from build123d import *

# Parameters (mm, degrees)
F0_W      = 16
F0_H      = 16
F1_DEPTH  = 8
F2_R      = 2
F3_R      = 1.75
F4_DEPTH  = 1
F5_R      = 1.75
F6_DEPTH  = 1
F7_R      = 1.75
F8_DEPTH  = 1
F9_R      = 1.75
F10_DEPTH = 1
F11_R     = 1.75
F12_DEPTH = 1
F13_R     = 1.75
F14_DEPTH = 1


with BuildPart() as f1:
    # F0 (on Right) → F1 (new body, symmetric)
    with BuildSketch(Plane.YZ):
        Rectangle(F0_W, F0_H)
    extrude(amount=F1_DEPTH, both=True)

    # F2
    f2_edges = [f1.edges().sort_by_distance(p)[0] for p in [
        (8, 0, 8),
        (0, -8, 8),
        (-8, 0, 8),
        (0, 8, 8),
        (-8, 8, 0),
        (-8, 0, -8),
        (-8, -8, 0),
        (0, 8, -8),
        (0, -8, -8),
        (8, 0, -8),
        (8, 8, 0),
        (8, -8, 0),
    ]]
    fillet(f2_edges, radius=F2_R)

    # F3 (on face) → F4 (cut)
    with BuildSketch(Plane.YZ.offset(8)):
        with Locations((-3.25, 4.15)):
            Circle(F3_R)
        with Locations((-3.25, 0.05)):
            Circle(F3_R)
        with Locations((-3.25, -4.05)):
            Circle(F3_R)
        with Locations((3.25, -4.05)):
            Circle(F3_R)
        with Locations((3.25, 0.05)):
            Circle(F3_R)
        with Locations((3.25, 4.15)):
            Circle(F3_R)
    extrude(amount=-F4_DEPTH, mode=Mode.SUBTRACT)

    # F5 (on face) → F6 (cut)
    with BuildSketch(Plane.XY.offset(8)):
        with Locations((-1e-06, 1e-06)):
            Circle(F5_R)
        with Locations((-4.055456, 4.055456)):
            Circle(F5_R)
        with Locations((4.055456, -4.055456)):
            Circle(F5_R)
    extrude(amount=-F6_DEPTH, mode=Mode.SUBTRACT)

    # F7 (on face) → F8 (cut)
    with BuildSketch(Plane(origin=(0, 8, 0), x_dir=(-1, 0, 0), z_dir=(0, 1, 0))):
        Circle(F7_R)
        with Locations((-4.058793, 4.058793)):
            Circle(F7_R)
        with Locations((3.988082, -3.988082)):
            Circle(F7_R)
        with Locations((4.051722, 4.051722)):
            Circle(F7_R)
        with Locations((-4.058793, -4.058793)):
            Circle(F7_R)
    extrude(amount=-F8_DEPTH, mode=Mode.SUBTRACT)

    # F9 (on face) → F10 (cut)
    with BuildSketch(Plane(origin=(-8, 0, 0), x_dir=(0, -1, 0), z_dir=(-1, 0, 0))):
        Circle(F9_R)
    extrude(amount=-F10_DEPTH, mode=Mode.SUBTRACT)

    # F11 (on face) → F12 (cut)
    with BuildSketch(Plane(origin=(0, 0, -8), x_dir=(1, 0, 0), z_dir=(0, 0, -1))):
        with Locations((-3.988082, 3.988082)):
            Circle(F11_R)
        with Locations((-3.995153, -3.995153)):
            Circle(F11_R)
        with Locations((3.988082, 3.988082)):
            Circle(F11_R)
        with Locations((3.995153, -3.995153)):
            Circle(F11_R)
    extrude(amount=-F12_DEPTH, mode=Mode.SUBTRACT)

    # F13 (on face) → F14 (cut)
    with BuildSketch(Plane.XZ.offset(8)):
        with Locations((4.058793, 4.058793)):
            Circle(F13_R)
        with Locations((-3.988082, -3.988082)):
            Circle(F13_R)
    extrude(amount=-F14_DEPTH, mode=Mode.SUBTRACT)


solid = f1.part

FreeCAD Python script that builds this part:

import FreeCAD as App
import Part
import Sketcher


def add_polygon(sketch, points):
    """Adds a closed chain of lines whose ends are joined by coincident constraints."""
    first, n = sketch.GeometryCount, len(points)
    for a, b in zip(points, points[1:] + points[:1]):
        sketch.addGeometry(Part.LineSegment(App.Vector(*a, 0), App.Vector(*b, 0)), False)
    for i in range(n):
        sketch.addConstraint(Sketcher.Constraint("Coincident", first + i, 2, first + (i + 1) % n, 1))

doc = App.newDocument("Part")
body = doc.addObject("PartDesign::Body", "Body")

sketch1 = body.newObject("Sketcher::SketchObject", "Sketch")
sketch1.AttachmentSupport = (doc.getObject("YZ_Plane"), [""])
sketch1.MapMode = "FlatFace"
add_polygon(sketch1, [(-8, 8), (-8, -8), (8, -8), (8, 8)])
sketch1.addConstraint(Sketcher.Constraint("Vertical", 0))
sketch1.addConstraint(Sketcher.Constraint("Horizontal", 1))
sketch1.addConstraint(Sketcher.Constraint("Vertical", 2))
sketch1.addConstraint(Sketcher.Constraint("Horizontal", 3))
sketch1.addConstraint(Sketcher.Constraint("Symmetric", 0, 2, 2, 2, -1, 1))
sketch1.addConstraint(Sketcher.Constraint("Equal", 3, 0))
sketch1.addConstraint(Sketcher.Constraint("DistanceX", 1, 1, 1, 2, 16.0))
pad1 = body.newObject("PartDesign::Pad", "Pad")
pad1.Profile = sketch1
pad1.Length = 16
pad1.Midplane = True
doc.recompute()

fillet = body.newObject("PartDesign::Fillet", "Fillet")
fillet.Base = (pad1, ["Edge1"])
fillet.UseAllEdges = True
fillet.Radius = 2

sketch2 = body.newObject("Sketcher::SketchObject", "Sketch001")
sketch2.AttachmentSupport = (doc.getObject("YZ_Plane"), [""])
sketch2.MapMode = "FlatFace"
sketch2.AttachmentOffset = App.Placement(App.Vector(0, 0, 8), App.Rotation())
sketch2.addGeometry(Part.Circle(App.Vector(-3.2, 4.2, 0), App.Vector(0, 0, 1), 1.8), False)
sketch2.addGeometry(Part.Circle(App.Vector(-3.2, 0.1, 0), App.Vector(0, 0, 1), 1.8), False)
sketch2.addGeometry(Part.Circle(App.Vector(-3.2, -4, 0), App.Vector(0, 0, 1), 1.8), False)
sketch2.addGeometry(Part.Circle(App.Vector(3.2, -4, 0), App.Vector(0, 0, 1), 1.8), False)
sketch2.addGeometry(Part.Circle(App.Vector(3.2, 0.1, 0), App.Vector(0, 0, 1), 1.8), False)
sketch2.addGeometry(Part.Circle(App.Vector(3.2, 4.2, 0), App.Vector(0, 0, 1), 1.8), False)
sketch2.addConstraint(Sketcher.Constraint("Equal", 0, 1))
sketch2.addConstraint(Sketcher.Constraint("Equal", 1, 2))
sketch2.addConstraint(Sketcher.Constraint("Equal", 2, 3))
sketch2.addConstraint(Sketcher.Constraint("Equal", 3, 4))
sketch2.addConstraint(Sketcher.Constraint("Equal", 4, 5))
sketch2.addConstraint(Sketcher.Constraint("Symmetric", 2, 3, 3, 3, -2))
sketch2.addConstraint(Sketcher.Constraint("Symmetric", 1, 3, 4, 3, -2))
sketch2.addConstraint(Sketcher.Constraint("Symmetric", 0, 3, 5, 3, -2))
sketch2.addConstraint(Sketcher.Constraint("Vertical", 0, 3, 1, 3))
sketch2.addConstraint(Sketcher.Constraint("Vertical", 1, 3, 2, 3))
sketch2.addConstraint(Sketcher.Constraint("Diameter", 0, 3.5))
sketch2.addConstraint(Sketcher.Constraint("DistanceY", 1, 3, 0, 3, 4.1))
sketch2.addConstraint(Sketcher.Constraint("DistanceY", 2, 3, 1, 3, 4.1))
sketch2.addConstraint(Sketcher.Constraint("DistanceX", 2, 3, 3, 3, 6.5))
sketch2.addConstraint(Sketcher.Constraint("DistanceY", -1, 1, 0, 3, 4.15))
pocket1 = body.newObject("PartDesign::Pocket", "Pocket")
pocket1.Profile = sketch2
pocket1.Length = 1

sketch3 = body.newObject("Sketcher::SketchObject", "Sketch002")
sketch3.AttachmentSupport = (doc.getObject("XY_Plane"), [""])
sketch3.MapMode = "FlatFace"
sketch3.AttachmentOffset = App.Placement(App.Vector(0, 0, 8), App.Rotation())
sketch3.addGeometry(Part.Circle(App.Vector(0, 0, 0), App.Vector(0, 0, 1), 1.8), False)
sketch3.addGeometry(Part.Circle(App.Vector(-4.1, 4.1, 0), App.Vector(0, 0, 1), 1.8), False)
sketch3.addGeometry(Part.Circle(App.Vector(4.1, -4.1, 0), App.Vector(0, 0, 1), 1.8), False)
sketch3.addConstraint(Sketcher.Constraint("Coincident", 0, 3, -1, 1))
sketch3.addConstraint(Sketcher.Constraint("Equal", 0, 1))
sketch3.addConstraint(Sketcher.Constraint("Equal", 1, 2))
sketch3.addConstraint(Sketcher.Constraint("Symmetric", 1, 3, 2, 3, -1, 1))
sketch3.addConstraint(Sketcher.Constraint("Diameter", 0, 3.5))
sketch3.addConstraint(Sketcher.Constraint("DistanceX", 1, 3, -1, 1, 4.055456))
sketch3.addConstraint(Sketcher.Constraint("DistanceY", -1, 1, 1, 3, 4.055456))
pocket2 = body.newObject("PartDesign::Pocket", "Pocket001")
pocket2.Profile = sketch3
pocket2.Length = 1

sketch4 = body.newObject("Sketcher::SketchObject", "Sketch003")
sketch4.AttachmentSupport = (doc.getObject("XZ_Plane"), [""])
sketch4.MapMode = "FlatFace"
sketch4.AttachmentOffset = App.Placement(App.Vector(0, 0, -8), App.Rotation())
sketch4.addGeometry(Part.Circle(App.Vector(0, 0, 0), App.Vector(0, 0, 1), 1.8), False)
sketch4.addGeometry(Part.Circle(App.Vector(4.1, 4.1, 0), App.Vector(0, 0, 1), 1.8), False)
sketch4.addGeometry(Part.Circle(App.Vector(-4, -4, 0), App.Vector(0, 0, 1), 1.8), False)
sketch4.addGeometry(Part.Circle(App.Vector(-4.1, 4.1, 0), App.Vector(0, 0, 1), 1.8), False)
sketch4.addGeometry(Part.Circle(App.Vector(4.1, -4.1, 0), App.Vector(0, 0, 1), 1.8), False)
sketch4.addConstraint(Sketcher.Constraint("Coincident", 0, 3, -1, 1))
sketch4.addConstraint(Sketcher.Constraint("Equal", 0, 1))
sketch4.addConstraint(Sketcher.Constraint("Equal", 1, 2))
sketch4.addConstraint(Sketcher.Constraint("Equal", 2, 3))
sketch4.addConstraint(Sketcher.Constraint("Equal", 3, 4))
sketch4.addConstraint(Sketcher.Constraint("Symmetric", 1, 3, 4, 3, -1))
sketch4.addConstraint(Sketcher.Constraint("Diameter", 0, 3.5))
sketch4.addConstraint(Sketcher.Constraint("DistanceX", 2, 3, -1, 1, 3.988082))
sketch4.addConstraint(Sketcher.Constraint("DistanceY", 2, 3, -1, 1, 3.988082))
sketch4.addConstraint(Sketcher.Constraint("DistanceX", 3, 3, -1, 1, 4.051722))
sketch4.addConstraint(Sketcher.Constraint("DistanceY", -1, 1, 3, 3, 4.051722))
sketch4.addConstraint(Sketcher.Constraint("DistanceY", 3, 3, 1, 3, 0.007071))
sketch4.addConstraint(Sketcher.Constraint("DistanceX", -1, 1, 1, 3, 4.058793))
pocket3 = body.newObject("PartDesign::Pocket", "Pocket002")
pocket3.Profile = sketch4
pocket3.Length = 1
pocket3.Reversed = True

sketch5 = body.newObject("Sketcher::SketchObject", "Sketch004")
sketch5.AttachmentSupport = (doc.getObject("YZ_Plane"), [""])
sketch5.MapMode = "FlatFace"
sketch5.AttachmentOffset = App.Placement(App.Vector(0, 0, -8), App.Rotation())
sketch5.addGeometry(Part.Circle(App.Vector(0, 0, 0), App.Vector(0, 0, 1), 1.8), False)
sketch5.addConstraint(Sketcher.Constraint("Coincident", 0, 3, -1, 1))
sketch5.addConstraint(Sketcher.Constraint("Diameter", 0, 3.5))
pocket4 = body.newObject("PartDesign::Pocket", "Pocket003")
pocket4.Profile = sketch5
pocket4.Length = 1
pocket4.Reversed = True

sketch6 = body.newObject("Sketcher::SketchObject", "Sketch005")
sketch6.AttachmentSupport = (doc.getObject("XY_Plane"), [""])
sketch6.MapMode = "FlatFace"
sketch6.AttachmentOffset = App.Placement(App.Vector(0, 0, -8), App.Rotation())
sketch6.addGeometry(Part.Circle(App.Vector(-4, -4, 0), App.Vector(0, 0, 1), 1.8), False)
sketch6.addGeometry(Part.Circle(App.Vector(-4, 4, 0), App.Vector(0, 0, 1), 1.8), False)
sketch6.addGeometry(Part.Circle(App.Vector(4, -4, 0), App.Vector(0, 0, 1), 1.8), False)
sketch6.addGeometry(Part.Circle(App.Vector(4, 4, 0), App.Vector(0, 0, 1), 1.8), False)
sketch6.addConstraint(Sketcher.Constraint("Equal", 0, 1))
sketch6.addConstraint(Sketcher.Constraint("Equal", 1, 2))
sketch6.addConstraint(Sketcher.Constraint("Equal", 2, 3))
sketch6.addConstraint(Sketcher.Constraint("Symmetric", 0, 3, 2, 3, -2))
sketch6.addConstraint(Sketcher.Constraint("Symmetric", 1, 3, 3, 3, -2))
sketch6.addConstraint(Sketcher.Constraint("Diameter", 0, 3.5))
sketch6.addConstraint(Sketcher.Constraint("DistanceX", 0, 3, -1, 1, 3.988082))
sketch6.addConstraint(Sketcher.Constraint("DistanceY", 0, 3, -1, 1, 3.988082))
sketch6.addConstraint(Sketcher.Constraint("DistanceX", 1, 3, 0, 3, 0.007071))
sketch6.addConstraint(Sketcher.Constraint("DistanceY", -1, 1, 1, 3, 3.995153))
pocket5 = body.newObject("PartDesign::Pocket", "Pocket004")
pocket5.Profile = sketch6
pocket5.Length = 1
pocket5.Reversed = True

sketch7 = body.newObject("Sketcher::SketchObject", "Sketch006")
sketch7.AttachmentSupport = (doc.getObject("XZ_Plane"), [""])
sketch7.MapMode = "FlatFace"
sketch7.AttachmentOffset = App.Placement(App.Vector(0, 0, 8), App.Rotation())
sketch7.addGeometry(Part.Circle(App.Vector(4.1, 4.1, 0), App.Vector(0, 0, 1), 1.8), False)
sketch7.addGeometry(Part.Circle(App.Vector(-4, -4, 0), App.Vector(0, 0, 1), 1.8), False)
sketch7.addConstraint(Sketcher.Constraint("Equal", 0, 1))
sketch7.addConstraint(Sketcher.Constraint("Diameter", 0, 3.5))
sketch7.addConstraint(Sketcher.Constraint("DistanceX", 1, 3, -1, 1, 3.988082))
sketch7.addConstraint(Sketcher.Constraint("DistanceY", 1, 3, -1, 1, 3.988082))
sketch7.addConstraint(Sketcher.Constraint("DistanceX", -1, 1, 0, 3, 4.058793))
sketch7.addConstraint(Sketcher.Constraint("DistanceY", -1, 1, 0, 3, 4.058793))
pocket6 = body.newObject("PartDesign::Pocket", "Pocket005")
pocket6.Profile = sketch7
pocket6.Length = 1

doc.recompute()
